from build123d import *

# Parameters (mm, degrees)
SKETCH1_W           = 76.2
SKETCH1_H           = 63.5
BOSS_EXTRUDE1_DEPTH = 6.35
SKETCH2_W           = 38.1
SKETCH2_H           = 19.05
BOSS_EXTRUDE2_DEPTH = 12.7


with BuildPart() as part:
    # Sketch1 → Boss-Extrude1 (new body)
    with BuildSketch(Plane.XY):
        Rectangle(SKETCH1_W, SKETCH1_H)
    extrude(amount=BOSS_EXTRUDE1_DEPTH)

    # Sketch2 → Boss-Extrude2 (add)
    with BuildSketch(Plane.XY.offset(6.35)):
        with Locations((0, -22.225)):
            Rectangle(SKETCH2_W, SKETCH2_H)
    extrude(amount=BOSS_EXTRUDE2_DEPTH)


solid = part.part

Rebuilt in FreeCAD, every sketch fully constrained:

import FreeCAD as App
import Part
import Sketcher

V = App.Vector
Q = App.Units.Quantity


def add_polygon(sketch, points):
    """Adds a closed chain of lines whose ends are joined by coincident constraints."""
    first, n = sketch.GeometryCount, len(points)
    for a, b in zip(points, points[1:] + points[:1]):
        sketch.addGeometry(Part.LineSegment(App.Vector(*a, 0), App.Vector(*b, 0)), False)
    for i in range(n):
        sketch.addConstraint(Sketcher.Constraint("Coincident", first + i, 2, first + (i + 1) % n, 1))

doc = App.newDocument("Part")
body = doc.addObject("PartDesign::Body", "Body")

# Sketch on XY plane
sketch1 = doc.addObject("Sketcher::SketchObject", "Sketch")
body.addObject(sketch1)
sketch1.AttachmentSupport = (doc.XY_Plane, [""])
sketch1.MapMode = "FlatFace"
add_polygon(sketch1, [(-38, 32), (-38, -32), (38, -32), (38, 32)])  # lines 0-3
sketch1.addConstraint(Sketcher.Constraint("Vertical", 0))
sketch1.addConstraint(Sketcher.Constraint("Horizontal", 1))
sketch1.addConstraint(Sketcher.Constraint("Vertical", 2))
sketch1.addConstraint(Sketcher.Constraint("Horizontal", 3))
sketch1.addConstraint(Sketcher.Constraint("Symmetric", 0, 2, 2, 2, -1, 1))
sketch1.addConstraint(Sketcher.Constraint("DistanceX", 1, 1, 1, 2, Q("3 in")))
sketch1.addConstraint(Sketcher.Constraint("DistanceY", 0, 2, 0, 1, Q("2.5 in")))
pad1 = doc.addObject("PartDesign::Pad", "Pad")
body.addObject(pad1)
pad1.Profile = sketch1
pad1.Length = Q("0.25 in")

# Sketch on XY plane
sketch2 = doc.addObject("Sketcher::SketchObject", "Sketch001")
body.addObject(sketch2)
sketch2.AttachmentSupport = (doc.XY_Plane, [""])
sketch2.MapMode = "FlatFace"
sketch2.AttachmentOffset = App.Placement(V(0, 0, 0.25 * 25.4), App.Rotation())
add_polygon(sketch2, [(-19, -13), (-19, -32), (19, -32), (19, -13)])  # lines 0-3
sketch2.addConstraint(Sketcher.Constraint("Vertical", 0))
sketch2.addConstraint(Sketcher.Constraint("Horizontal", 1))
sketch2.addConstraint(Sketcher.Constraint("Vertical", 2))
sketch2.addConstraint(Sketcher.Constraint("Horizontal", 3))
sketch2.addConstraint(Sketcher.Constraint("DistanceX", 1, 1, 1, 2, Q("1.5 in")))
sketch2.addConstraint(Sketcher.Constraint("DistanceY", 0, 2, 0, 1, Q("0.75 in")))
sketch2.addConstraint(Sketcher.Constraint("DistanceY", 2, 2, -1, 1, Q("0.5 in")))
sketch2.addConstraint(Sketcher.Constraint("DistanceX", 0, 2, -1, 1, Q("0.75 in")))
pad2 = doc.addObject("PartDesign::Pad", "Pad001")
body.addObject(pad2)
pad2.Profile = sketch2
pad2.Length = Q("0.5 in")

doc.recompute()
